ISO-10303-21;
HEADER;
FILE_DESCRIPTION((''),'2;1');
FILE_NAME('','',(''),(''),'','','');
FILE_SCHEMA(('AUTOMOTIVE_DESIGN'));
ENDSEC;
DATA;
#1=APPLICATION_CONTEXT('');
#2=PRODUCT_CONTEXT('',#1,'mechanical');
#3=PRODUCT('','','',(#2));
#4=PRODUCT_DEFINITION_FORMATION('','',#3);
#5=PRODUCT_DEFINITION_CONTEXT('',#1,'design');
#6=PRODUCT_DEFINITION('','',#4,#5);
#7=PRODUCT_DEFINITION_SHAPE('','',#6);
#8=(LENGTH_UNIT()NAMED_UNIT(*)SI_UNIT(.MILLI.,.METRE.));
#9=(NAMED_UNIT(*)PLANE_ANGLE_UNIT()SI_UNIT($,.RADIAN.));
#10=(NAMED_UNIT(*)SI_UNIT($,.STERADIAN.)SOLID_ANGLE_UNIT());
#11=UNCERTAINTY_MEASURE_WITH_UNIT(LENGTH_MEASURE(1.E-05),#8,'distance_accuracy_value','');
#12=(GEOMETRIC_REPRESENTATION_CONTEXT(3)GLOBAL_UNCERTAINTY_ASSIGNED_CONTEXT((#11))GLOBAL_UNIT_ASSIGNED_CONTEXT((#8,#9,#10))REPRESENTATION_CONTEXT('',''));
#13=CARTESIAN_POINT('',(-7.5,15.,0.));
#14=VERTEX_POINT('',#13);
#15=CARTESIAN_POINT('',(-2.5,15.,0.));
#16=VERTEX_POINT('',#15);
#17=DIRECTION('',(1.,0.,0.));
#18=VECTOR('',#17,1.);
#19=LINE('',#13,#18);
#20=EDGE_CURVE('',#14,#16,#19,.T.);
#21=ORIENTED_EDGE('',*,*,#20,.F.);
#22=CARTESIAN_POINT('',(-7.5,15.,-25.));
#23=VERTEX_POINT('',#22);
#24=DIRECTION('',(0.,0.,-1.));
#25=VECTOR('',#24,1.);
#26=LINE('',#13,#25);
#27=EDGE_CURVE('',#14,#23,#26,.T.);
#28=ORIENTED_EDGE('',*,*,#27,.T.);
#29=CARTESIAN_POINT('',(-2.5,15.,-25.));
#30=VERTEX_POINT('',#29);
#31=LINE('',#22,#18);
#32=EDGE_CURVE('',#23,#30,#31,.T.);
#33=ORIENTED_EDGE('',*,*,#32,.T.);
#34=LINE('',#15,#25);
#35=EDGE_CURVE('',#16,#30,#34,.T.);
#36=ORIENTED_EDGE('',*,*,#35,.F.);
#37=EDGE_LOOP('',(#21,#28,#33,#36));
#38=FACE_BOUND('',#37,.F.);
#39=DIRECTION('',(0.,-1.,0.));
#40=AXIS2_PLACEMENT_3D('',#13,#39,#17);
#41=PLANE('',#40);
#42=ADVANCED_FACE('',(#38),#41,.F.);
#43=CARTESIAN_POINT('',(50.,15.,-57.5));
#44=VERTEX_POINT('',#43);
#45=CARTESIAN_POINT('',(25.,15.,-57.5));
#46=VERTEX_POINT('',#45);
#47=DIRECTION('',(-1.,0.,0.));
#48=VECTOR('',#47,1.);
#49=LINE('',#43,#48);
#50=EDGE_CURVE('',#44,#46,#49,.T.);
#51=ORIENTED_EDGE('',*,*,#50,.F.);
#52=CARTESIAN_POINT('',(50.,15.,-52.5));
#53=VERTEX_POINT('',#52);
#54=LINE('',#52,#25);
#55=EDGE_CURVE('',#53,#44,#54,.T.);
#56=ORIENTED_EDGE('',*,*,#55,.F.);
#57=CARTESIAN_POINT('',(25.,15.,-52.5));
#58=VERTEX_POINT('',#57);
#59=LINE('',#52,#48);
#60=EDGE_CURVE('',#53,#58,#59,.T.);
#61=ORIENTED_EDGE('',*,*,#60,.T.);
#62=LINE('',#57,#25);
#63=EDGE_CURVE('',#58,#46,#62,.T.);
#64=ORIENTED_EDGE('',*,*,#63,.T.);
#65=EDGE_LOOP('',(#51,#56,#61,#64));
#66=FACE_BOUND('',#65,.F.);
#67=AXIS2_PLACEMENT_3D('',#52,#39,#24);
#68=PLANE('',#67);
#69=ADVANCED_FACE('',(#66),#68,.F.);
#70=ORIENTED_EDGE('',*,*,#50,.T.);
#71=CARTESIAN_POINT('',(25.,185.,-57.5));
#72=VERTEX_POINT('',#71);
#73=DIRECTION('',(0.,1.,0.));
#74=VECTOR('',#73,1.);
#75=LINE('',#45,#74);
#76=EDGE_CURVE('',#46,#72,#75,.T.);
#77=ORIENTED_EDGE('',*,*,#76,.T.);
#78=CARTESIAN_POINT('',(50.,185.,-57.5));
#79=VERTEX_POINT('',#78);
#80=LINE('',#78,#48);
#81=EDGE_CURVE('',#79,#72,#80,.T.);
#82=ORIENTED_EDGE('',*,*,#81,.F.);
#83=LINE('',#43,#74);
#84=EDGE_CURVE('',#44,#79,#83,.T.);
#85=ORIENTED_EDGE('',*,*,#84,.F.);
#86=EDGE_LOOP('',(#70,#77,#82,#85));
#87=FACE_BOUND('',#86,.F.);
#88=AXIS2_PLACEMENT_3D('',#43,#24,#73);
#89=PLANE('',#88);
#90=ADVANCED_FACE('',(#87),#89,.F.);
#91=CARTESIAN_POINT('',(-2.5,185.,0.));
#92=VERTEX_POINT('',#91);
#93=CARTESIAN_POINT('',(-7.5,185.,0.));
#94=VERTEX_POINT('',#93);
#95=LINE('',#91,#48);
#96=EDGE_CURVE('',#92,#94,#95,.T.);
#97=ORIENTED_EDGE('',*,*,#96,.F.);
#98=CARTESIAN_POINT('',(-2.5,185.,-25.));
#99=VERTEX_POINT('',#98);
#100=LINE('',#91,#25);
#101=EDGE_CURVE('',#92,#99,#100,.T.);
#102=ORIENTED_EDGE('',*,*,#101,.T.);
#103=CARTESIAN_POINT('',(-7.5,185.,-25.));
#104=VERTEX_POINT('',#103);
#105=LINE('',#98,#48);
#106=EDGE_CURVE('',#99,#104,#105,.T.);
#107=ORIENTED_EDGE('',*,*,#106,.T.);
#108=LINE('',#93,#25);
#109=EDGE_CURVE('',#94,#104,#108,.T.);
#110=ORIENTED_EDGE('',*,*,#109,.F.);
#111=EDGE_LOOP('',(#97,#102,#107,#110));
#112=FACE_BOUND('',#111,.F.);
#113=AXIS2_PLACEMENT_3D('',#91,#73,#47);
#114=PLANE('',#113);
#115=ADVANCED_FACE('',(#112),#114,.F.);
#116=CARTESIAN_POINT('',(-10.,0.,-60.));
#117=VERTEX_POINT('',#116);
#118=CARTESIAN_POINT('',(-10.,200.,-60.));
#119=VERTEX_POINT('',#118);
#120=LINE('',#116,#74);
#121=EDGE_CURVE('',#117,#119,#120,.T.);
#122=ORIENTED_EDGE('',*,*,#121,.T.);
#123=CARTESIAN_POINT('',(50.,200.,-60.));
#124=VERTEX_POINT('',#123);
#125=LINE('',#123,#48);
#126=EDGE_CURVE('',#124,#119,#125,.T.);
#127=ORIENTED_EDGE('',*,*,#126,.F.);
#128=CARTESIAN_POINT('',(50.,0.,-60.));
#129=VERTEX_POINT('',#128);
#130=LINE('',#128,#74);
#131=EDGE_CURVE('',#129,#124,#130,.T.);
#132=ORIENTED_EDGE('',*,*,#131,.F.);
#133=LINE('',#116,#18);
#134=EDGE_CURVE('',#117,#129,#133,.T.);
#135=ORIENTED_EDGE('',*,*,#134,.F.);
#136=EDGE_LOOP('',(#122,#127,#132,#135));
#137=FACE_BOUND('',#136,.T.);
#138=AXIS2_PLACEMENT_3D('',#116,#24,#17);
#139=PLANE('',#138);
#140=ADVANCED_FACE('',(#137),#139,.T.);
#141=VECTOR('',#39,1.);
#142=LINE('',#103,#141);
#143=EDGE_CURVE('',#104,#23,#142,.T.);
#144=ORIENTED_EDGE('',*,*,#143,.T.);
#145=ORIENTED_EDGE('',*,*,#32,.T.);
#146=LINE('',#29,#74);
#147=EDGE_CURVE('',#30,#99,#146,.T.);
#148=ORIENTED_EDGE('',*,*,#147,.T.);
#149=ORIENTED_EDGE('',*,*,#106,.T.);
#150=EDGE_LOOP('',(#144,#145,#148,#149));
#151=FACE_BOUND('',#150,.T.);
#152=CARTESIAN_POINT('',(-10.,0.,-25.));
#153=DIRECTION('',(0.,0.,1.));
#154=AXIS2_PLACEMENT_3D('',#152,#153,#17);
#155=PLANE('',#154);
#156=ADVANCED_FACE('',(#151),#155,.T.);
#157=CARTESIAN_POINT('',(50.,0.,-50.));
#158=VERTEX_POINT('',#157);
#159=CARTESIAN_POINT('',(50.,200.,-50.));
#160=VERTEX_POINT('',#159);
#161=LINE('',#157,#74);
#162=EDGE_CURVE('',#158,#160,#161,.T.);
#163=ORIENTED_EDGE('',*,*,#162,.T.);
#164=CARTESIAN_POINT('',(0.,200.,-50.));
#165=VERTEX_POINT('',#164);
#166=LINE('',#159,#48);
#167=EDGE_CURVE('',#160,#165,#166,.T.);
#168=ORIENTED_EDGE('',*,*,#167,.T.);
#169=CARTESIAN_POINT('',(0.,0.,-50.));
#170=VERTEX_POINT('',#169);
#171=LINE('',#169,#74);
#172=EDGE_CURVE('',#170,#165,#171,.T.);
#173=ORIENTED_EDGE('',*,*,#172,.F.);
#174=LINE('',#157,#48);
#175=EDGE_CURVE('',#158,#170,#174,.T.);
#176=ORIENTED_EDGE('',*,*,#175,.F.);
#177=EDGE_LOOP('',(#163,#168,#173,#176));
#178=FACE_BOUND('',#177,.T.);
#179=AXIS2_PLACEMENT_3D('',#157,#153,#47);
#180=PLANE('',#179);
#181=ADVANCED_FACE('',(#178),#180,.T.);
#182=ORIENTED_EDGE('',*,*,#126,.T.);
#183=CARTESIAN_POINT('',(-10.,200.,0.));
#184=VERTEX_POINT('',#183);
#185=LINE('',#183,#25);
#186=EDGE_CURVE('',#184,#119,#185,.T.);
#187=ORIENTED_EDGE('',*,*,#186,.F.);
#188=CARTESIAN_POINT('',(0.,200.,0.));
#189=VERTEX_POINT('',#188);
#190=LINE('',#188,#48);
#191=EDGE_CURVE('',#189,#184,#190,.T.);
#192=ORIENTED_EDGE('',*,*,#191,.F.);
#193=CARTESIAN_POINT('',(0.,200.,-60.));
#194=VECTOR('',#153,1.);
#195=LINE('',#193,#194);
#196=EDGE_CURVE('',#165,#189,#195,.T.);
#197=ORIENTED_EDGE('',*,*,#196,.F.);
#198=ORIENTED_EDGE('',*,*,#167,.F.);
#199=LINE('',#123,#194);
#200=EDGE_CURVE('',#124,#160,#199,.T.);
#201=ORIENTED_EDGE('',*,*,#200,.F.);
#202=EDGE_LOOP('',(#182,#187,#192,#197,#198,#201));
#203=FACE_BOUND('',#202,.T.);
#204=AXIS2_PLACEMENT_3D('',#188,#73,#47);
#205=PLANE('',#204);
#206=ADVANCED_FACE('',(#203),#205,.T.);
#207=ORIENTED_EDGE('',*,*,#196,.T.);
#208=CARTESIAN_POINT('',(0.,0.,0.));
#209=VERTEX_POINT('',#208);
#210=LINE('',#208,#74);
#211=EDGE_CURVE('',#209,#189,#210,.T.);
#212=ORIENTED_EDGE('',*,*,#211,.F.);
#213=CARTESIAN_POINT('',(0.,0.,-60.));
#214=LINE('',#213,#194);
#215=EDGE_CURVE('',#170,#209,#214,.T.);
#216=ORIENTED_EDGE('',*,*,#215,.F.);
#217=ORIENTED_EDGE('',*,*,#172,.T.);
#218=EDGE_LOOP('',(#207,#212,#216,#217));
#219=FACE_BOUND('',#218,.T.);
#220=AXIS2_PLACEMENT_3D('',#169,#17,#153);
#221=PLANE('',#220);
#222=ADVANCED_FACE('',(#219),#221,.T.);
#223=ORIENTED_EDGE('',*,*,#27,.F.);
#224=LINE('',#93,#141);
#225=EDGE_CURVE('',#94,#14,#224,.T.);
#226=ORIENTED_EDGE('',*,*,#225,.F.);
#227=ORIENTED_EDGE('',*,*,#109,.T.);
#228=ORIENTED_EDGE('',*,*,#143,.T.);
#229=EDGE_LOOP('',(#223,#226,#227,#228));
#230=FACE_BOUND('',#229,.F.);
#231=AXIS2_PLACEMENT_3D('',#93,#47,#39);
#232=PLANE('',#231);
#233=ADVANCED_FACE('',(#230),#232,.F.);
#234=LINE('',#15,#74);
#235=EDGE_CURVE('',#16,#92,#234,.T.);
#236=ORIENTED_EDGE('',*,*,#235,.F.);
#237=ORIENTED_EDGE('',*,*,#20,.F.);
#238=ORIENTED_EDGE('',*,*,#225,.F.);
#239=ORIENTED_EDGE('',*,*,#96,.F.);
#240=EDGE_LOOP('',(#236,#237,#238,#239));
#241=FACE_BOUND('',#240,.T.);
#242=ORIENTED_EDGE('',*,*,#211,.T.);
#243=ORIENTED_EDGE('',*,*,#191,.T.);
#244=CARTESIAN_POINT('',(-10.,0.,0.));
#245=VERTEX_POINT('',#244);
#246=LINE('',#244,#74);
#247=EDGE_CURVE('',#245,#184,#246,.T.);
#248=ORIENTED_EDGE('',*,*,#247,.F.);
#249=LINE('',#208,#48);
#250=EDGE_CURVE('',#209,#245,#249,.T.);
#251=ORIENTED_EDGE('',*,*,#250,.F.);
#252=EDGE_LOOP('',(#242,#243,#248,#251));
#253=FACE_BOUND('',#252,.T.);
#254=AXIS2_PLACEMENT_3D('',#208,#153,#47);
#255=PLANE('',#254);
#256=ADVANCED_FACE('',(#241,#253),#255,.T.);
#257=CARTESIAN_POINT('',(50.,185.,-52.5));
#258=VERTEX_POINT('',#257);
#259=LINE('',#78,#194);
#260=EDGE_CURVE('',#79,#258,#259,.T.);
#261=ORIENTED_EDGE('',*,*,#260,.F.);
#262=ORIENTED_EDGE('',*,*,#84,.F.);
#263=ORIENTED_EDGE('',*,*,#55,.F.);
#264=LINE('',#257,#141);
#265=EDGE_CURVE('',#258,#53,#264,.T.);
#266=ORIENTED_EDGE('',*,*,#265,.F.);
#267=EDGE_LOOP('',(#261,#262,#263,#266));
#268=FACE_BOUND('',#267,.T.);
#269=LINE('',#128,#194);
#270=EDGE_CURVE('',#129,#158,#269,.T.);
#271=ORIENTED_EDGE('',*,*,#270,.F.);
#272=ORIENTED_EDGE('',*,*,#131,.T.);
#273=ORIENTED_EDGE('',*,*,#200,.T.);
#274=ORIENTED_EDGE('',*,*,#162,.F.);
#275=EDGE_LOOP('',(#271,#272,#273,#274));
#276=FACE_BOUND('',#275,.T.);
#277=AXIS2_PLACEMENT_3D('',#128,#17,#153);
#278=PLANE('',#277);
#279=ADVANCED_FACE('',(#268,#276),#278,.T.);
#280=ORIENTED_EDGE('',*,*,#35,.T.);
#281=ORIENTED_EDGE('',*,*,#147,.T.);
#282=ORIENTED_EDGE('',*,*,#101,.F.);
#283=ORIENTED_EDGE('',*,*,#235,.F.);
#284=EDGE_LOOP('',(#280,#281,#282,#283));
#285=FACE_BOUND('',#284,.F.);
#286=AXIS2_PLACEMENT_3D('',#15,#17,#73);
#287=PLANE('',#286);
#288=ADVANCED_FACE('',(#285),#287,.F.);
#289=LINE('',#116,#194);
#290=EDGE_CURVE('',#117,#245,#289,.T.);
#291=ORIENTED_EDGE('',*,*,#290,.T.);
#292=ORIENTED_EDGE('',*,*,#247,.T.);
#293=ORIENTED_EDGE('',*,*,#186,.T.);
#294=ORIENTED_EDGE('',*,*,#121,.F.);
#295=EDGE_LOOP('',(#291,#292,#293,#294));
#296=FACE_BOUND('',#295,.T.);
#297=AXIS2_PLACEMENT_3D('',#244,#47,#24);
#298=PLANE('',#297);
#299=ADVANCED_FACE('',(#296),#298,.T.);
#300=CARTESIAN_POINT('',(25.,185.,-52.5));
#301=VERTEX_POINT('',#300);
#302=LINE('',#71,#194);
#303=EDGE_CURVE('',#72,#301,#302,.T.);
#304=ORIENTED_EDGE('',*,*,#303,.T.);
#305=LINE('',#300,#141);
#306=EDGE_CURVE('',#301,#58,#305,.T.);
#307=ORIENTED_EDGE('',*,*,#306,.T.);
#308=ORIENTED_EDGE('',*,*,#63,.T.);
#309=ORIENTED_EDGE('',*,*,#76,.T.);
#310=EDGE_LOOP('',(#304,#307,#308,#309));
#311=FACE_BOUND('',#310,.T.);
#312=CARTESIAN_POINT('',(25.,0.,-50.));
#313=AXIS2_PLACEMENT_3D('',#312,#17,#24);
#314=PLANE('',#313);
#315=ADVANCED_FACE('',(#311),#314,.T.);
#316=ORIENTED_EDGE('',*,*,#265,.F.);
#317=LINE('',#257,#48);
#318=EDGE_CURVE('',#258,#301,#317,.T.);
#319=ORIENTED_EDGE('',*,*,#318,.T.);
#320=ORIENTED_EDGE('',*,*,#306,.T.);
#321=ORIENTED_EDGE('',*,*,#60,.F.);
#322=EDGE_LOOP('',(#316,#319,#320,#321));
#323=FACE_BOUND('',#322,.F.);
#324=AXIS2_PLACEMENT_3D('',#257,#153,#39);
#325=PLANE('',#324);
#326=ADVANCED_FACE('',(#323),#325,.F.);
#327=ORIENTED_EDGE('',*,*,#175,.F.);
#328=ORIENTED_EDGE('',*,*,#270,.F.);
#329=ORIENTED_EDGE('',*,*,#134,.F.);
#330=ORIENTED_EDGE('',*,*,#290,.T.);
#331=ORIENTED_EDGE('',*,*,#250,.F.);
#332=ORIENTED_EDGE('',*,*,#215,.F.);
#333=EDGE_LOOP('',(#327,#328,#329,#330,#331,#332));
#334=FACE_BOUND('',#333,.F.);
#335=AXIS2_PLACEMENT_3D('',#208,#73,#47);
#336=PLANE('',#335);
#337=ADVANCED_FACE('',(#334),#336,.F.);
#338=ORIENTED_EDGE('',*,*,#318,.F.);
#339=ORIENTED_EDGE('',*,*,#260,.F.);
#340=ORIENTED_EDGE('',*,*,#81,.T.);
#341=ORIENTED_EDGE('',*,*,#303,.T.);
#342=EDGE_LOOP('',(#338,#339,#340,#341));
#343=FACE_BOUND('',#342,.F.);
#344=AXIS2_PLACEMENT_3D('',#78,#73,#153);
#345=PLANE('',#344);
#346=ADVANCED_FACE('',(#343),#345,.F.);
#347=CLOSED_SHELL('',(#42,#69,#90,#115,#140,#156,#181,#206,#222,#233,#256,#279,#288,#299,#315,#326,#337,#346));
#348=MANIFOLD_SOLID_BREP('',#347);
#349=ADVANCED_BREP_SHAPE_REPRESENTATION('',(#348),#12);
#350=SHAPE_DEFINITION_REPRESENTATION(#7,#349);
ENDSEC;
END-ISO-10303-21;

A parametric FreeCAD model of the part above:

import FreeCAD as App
import Part
import Sketcher
from FreeCAD import Vector
Q = App.Units.Quantity

doc = App.newDocument("Part")
body = doc.addObject("PartDesign::Body", "Body")

# Sketch on XZ plane
sketch1 = body.newObject("Sketcher::SketchObject", "Sketch")
sketch1.AttachmentSupport = (doc.getObject("XZ_Plane"), [""])
sketch1.MapMode = "FlatFace"
sketch1.addGeometry([
    Part.LineSegment(Vector(-10, 0, 0), Vector(0, 0, 0)),  # 0
    Part.LineSegment(Vector(0, 0, 0), Vector(0, -50, 0)),  # 1
    Part.LineSegment(Vector(0, -50, 0), Vector(50, -50, 0)),  # 2
    Part.LineSegment(Vector(50, -50, 0), Vector(50, -60, 0)),  # 3
    Part.LineSegment(Vector(50, -60, 0), Vector(-10, -60, 0)),  # 4
    Part.LineSegment(Vector(-10, -60, 0), Vector(-10, 0, 0)),  # 5
], False)
sketch1.addConstraint([
    Sketcher.Constraint("Coincident", 0, 2, 1, 1),
    Sketcher.Constraint("Coincident", 1, 2, 2, 1),
    Sketcher.Constraint("Coincident", 2, 2, 3, 1),
    Sketcher.Constraint("Coincident", 3, 2, 4, 1),
    Sketcher.Constraint("Coincident", 4, 2, 5, 1),
    Sketcher.Constraint("Coincident", 5, 2, 0, 1),
    Sketcher.Constraint("Horizontal", 0),
    Sketcher.Constraint("Vertical", 1),
    Sketcher.Constraint("Horizontal", 2),
    Sketcher.Constraint("Vertical", 3),
    Sketcher.Constraint("Horizontal", 4),
    Sketcher.Constraint("Vertical", 5),
    Sketcher.Constraint("Coincident", 0, 2, -1, 1),
    Sketcher.Constraint("Equal", 2, 1),
    Sketcher.Constraint("Equal", 0, 3),
    Sketcher.Constraint("DistanceX", 0, 1, 0, 2, Q("10 mm")),
    Sketcher.Constraint("DistanceX", 4, 2, 4, 1, Q("60 mm")),
])
pad1 = body.newObject("PartDesign::Pad", "Pad")
pad1.Profile = sketch1
pad1.Length = 200
pad1.Reversed = True

# Sketch on XY plane
sketch2 = body.newObject("Sketcher::SketchObject", "Sketch001")
sketch2.AttachmentSupport = (doc.getObject("XY_Plane"), [""])
sketch2.MapMode = "FlatFace"
sketch2.addGeometry([
    Part.LineSegment(Vector(-8, 185, 0), Vector(-8, 15, 0)),
    Part.LineSegment(Vector(-8, 15, 0), Vector(-2, 15, 0)),
    Part.LineSegment(Vector(-2, 15, 0), Vector(-2, 185, 0)),
    Part.LineSegment(Vector(-2, 185, 0), Vector(-8, 185, 0)),
], False)
sketch2.addConstraint([
    Sketcher.Constraint("Coincident", 0, 2, 1, 1),
    Sketcher.Constraint("Coincident", 1, 2, 2, 1),
    Sketcher.Constraint("Coincident", 2, 2, 3, 1),
    Sketcher.Constraint("Coincident", 3, 2, 0, 1),
    Sketcher.Constraint("Vertical", 0),
    Sketcher.Constraint("Horizontal", 1),
    Sketcher.Constraint("Vertical", 2),
    Sketcher.Constraint("Horizontal", 3),
    Sketcher.Constraint("DistanceX", 1, 1, 1, 2, Q("5 mm")),
    Sketcher.Constraint("DistanceY", 0, 2, 0, 1, Q("170 mm")),
    Sketcher.Constraint("DistanceY", -1, 1, 0, 2, Q("15 mm")),
    Sketcher.Constraint("DistanceX", 0, 2, -1, 1, Q("7.5 mm")),
])
pocket1 = body.newObject("PartDesign::Pocket", "Pocket")
pocket1.Profile = sketch2
pocket1.Length = 25

# Sketch on YZ plane
sketch3 = body.newObject("Sketcher::SketchObject", "Sketch002")
sketch3.AttachmentSupport = (doc.getObject("YZ_Plane"), [""])
sketch3.MapMode = "FlatFace"
sketch3.AttachmentOffset = App.Placement(Vector(0, 0, 50), App.Rotation())
sketch3.addGeometry([
    Part.LineSegment(Vector(185, -52, 0), Vector(15, -52, 0)),
    Part.LineSegment(Vector(15, -52, 0), Vector(15, -58, 0)),
    Part.LineSegment(Vector(15, -58, 0), Vector(185, -58, 0)),
    Part.LineSegment(Vector(185, -58, 0), Vector(185, -52, 0)),
], False)
sketch3.addConstraint([
    Sketcher.Constraint("Coincident", 0, 2, 1, 1),
    Sketcher.Constraint("Coincident", 1, 2, 2, 1),
    Sketcher.Constraint("Coincident", 2, 2, 3, 1),
    Sketcher.Constraint("Coincident", 3, 2, 0, 1),
    Sketcher.Constraint("Horizontal", 0),
    Sketcher.Constraint("Vertical", 1),
    Sketcher.Constraint("Horizontal", 2),
    Sketcher.Constraint("Vertical", 3),
    Sketcher.Constraint("DistanceX", 0, 2, 0, 1, Q("170 mm")),
    Sketcher.Constraint("DistanceY", 1, 2, 1, 1, Q("5 mm")),
    Sketcher.Constraint("DistanceX", -1, 1, 0, 2, Q("15 mm")),
    Sketcher.Constraint("DistanceY", 0, 2, -1, 1, Q("52.5 mm")),
])
pocket2 = body.newObject("PartDesign::Pocket", "Pocket001")
pocket2.Profile = sketch3
pocket2.Length = 25

doc.recompute()
